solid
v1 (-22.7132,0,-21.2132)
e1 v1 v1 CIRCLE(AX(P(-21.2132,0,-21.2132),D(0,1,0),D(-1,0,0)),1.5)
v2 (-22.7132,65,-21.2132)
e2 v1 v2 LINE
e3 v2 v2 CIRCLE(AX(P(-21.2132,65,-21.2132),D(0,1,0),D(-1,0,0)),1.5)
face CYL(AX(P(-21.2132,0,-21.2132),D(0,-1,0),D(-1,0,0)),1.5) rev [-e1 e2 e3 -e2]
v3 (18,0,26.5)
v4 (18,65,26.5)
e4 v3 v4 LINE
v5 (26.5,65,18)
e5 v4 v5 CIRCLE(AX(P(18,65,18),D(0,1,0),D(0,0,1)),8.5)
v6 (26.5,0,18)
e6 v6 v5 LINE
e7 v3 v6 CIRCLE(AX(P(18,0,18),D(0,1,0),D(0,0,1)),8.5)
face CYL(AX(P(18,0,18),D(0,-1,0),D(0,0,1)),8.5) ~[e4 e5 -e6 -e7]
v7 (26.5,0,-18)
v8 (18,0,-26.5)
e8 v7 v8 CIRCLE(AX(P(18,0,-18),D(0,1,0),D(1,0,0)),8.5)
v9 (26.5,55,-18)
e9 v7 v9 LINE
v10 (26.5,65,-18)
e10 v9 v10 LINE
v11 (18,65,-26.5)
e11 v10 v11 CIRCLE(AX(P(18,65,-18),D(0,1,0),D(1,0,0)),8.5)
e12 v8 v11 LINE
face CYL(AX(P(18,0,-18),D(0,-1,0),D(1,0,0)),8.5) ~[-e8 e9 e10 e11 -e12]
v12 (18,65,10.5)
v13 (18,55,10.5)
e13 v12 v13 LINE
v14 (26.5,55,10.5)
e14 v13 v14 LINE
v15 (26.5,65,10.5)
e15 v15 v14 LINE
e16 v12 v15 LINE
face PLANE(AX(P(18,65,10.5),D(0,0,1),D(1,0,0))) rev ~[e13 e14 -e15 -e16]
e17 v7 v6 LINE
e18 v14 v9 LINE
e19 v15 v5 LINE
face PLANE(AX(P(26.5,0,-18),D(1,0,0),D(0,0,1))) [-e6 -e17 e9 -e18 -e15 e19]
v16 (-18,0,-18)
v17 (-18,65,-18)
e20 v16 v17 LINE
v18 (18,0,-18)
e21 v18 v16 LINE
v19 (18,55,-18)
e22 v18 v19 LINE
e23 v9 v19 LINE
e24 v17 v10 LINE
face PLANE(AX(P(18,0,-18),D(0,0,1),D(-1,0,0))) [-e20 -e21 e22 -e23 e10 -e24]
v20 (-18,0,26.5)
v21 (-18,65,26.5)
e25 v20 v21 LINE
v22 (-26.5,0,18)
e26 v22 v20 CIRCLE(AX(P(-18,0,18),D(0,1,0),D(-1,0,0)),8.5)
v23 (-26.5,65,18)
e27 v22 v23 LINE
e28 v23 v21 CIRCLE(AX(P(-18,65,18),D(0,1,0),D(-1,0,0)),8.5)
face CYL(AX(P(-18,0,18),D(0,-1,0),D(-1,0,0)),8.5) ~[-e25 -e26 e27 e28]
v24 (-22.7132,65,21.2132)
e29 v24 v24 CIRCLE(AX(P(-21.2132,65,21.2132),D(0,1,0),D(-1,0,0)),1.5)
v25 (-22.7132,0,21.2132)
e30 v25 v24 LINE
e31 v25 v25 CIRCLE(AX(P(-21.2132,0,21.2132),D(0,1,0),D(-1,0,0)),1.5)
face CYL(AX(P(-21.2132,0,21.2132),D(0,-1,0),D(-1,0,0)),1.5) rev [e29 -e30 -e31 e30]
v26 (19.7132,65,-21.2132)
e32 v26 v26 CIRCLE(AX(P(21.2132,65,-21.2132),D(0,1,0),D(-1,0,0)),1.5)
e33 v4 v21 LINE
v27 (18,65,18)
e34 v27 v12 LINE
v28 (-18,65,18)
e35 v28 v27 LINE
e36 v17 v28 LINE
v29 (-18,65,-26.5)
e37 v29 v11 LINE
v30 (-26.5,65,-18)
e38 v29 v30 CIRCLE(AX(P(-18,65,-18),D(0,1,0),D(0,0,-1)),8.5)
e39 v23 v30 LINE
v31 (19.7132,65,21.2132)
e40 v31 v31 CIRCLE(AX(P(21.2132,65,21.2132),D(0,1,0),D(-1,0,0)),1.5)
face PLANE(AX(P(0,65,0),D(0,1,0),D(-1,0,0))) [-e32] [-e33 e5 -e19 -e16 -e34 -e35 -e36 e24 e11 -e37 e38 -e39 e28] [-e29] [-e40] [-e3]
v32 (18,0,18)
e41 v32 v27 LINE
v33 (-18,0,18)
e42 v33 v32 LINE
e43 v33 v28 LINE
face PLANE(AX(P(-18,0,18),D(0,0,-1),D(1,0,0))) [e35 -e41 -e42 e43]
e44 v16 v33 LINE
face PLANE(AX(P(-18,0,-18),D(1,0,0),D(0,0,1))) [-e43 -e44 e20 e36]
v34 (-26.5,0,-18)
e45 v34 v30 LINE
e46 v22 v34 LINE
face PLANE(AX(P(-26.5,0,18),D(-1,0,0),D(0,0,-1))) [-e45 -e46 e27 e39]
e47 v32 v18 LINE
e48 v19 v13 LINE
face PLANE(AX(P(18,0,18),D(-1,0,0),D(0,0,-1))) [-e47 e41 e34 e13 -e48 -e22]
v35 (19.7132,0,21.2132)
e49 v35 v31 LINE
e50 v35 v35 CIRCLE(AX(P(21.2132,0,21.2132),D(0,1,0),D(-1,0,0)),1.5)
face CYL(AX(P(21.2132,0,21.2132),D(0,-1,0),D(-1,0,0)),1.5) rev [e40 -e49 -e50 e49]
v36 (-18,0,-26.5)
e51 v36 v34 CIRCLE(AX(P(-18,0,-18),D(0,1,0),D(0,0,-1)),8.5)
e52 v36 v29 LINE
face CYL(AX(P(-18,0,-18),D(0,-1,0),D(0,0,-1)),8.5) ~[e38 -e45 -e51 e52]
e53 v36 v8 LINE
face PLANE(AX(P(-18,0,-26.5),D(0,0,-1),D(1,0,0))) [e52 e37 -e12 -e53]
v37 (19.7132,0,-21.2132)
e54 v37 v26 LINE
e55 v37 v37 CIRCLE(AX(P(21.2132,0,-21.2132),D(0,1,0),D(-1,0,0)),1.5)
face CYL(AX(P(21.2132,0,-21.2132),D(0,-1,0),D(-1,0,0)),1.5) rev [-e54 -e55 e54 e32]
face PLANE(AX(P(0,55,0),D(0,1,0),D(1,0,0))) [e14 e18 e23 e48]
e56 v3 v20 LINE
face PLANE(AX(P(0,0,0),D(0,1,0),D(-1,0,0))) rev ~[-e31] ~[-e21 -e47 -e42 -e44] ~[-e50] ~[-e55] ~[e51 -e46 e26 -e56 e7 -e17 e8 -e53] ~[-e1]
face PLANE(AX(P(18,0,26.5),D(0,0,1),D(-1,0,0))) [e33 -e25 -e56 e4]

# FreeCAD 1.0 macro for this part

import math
import FreeCAD as App
import Part
import Sketcher
from FreeCAD import Vector
Q = App.Units.Quantity

doc = App.newDocument("Part")
params = doc.addObject("Spreadsheet::Sheet", "Params")
for row, (alias, value) in enumerate([
    ("sketch1_diameter", "3 mm"),
    ("sketch1_radius", "8.5 mm"),
    ("sketch1_width", "36 mm"),
    ("pad1_length", "65 mm"),
    ("sketch2_width", "8.5 mm"),
    ("sketch2_height", "28.5 mm"),
    ("pocket1_length", "10 mm"),
], start=1):
    params.set(f"A{row}", alias)
    params.set(f"B{row}", "=" + value)
    params.setAlias(f"B{row}", alias)

body = doc.addObject("PartDesign::Body", "Body")

# Sketch on XZ plane
sketch1 = doc.addObject("Sketcher::SketchObject", "Sketch")
body.addObject(sketch1)
sketch1.AttachmentSupport = (doc.XZ_Plane, [""])
sketch1.MapMode = "FlatFace"
sketch1.addGeometry(Part.LineSegment(Vector(-18, 26.5, 0), Vector(18, 26.5, 0)), False)
sketch1.addGeometry(Part.ArcOfCircle(Part.Circle(Vector(18, 18, 0), Vector(0, 0, 1), 8.5), math.radians(0), math.radians(90)), False)
sketch1.addGeometry(Part.LineSegment(Vector(26.5, 18, 0), Vector(26.5, -18, 0)), False)
sketch1.addGeometry(Part.ArcOfCircle(Part.Circle(Vector(18, -18, 0), Vector(0, 0, 1), 8.5), math.radians(-90), math.radians(0)), False)
sketch1.addGeometry(Part.LineSegment(Vector(18, -26.5, 0), Vector(-18, -26.5, 0)), False)
sketch1.addGeometry(Part.ArcOfCircle(Part.Circle(Vector(-18, -18, 0), Vector(0, 0, 1), 8.5), math.radians(180), math.radians(270)), False)
sketch1.addGeometry(Part.LineSegment(Vector(-26.5, -18, 0), Vector(-26.5, 18, 0)), False)
sketch1.addGeometry(Part.ArcOfCircle(Part.Circle(Vector(-18, 18, 0), Vector(0, 0, 1), 8.5), math.radians(90), math.radians(180)), False)
sketch1.addGeometry(Part.Circle(Vector(21.2132, -21.2132, 0), Vector(0, 0, 1), 1.5), False)
sketch1.addGeometry(Part.Circle(Vector(-21.2132, -21.2132, 0), Vector(0, 0, 1), 1.5), False)
sketch1.addGeometry(Part.Circle(Vector(21.2132, 21.2132, 0), Vector(0, 0, 1), 1.5), False)
sketch1.addGeometry(Part.LineSegment(Vector(18, 18, 0), Vector(-18, 18, 0)), False)
sketch1.addGeometry(Part.LineSegment(Vector(-18, 18, 0), Vector(-18, -18, 0)), False)
sketch1.addGeometry(Part.LineSegment(Vector(-18, -18, 0), Vector(18, -18, 0)), False)
sketch1.addGeometry(Part.LineSegment(Vector(18, -18, 0), Vector(18, 18, 0)), False)
sketch1.addGeometry(Part.Circle(Vector(-21.2132, 21.2132, 0), Vector(0, 0, 1), 1.5), False)
sketch1.addConstraint(Sketcher.Constraint("Tangent", 0, 2, 1, 2))
sketch1.addConstraint(Sketcher.Constraint("Tangent", 1, 1, 2, 1))
sketch1.addConstraint(Sketcher.Constraint("Tangent", 2, 2, 3, 2))
sketch1.addConstraint(Sketcher.Constraint("Tangent", 3, 1, 4, 1))
sketch1.addConstraint(Sketcher.Constraint("Tangent", 4, 2, 5, 2))
sketch1.addConstraint(Sketcher.Constraint("Tangent", 5, 1, 6, 1))
sketch1.addConstraint(Sketcher.Constraint("Tangent", 6, 2, 7, 2))
sketch1.addConstraint(Sketcher.Constraint("Tangent", 7, 1, 0, 1))
sketch1.addConstraint(Sketcher.Constraint("Coincident", 11, 2, 12, 1))
sketch1.addConstraint(Sketcher.Constraint("Coincident", 12, 2, 13, 1))
sketch1.addConstraint(Sketcher.Constraint("Coincident", 13, 2, 14, 1))
sketch1.addConstraint(Sketcher.Constraint("Coincident", 14, 2, 11, 1))
sketch1.addConstraint(Sketcher.Constraint("Horizontal", 0))
sketch1.addConstraint(Sketcher.Constraint("Vertical", 2))
sketch1.addConstraint(Sketcher.Constraint("Horizontal", 4))
sketch1.addConstraint(Sketcher.Constraint("Vertical", 6))
sketch1.addConstraint(Sketcher.Constraint("Horizontal", 11))
sketch1.addConstraint(Sketcher.Constraint("Vertical", 12))
sketch1.addConstraint(Sketcher.Constraint("Horizontal", 13))
sketch1.addConstraint(Sketcher.Constraint("Vertical", 14))
sketch1.addConstraint(Sketcher.Constraint("Coincident", 11, 2, 7, 3))
sketch1.addConstraint(Sketcher.Constraint("Coincident", 12, 2, 5, 3))
sketch1.addConstraint(Sketcher.Constraint("Coincident", 13, 2, 3, 3))
sketch1.addConstraint(Sketcher.Constraint("Equal", 1, 3))
sketch1.addConstraint(Sketcher.Constraint("Equal", 8, 9))
sketch1.addConstraint(Sketcher.Constraint("Equal", 9, 10))
sketch1.addConstraint(Sketcher.Constraint("Equal", 10, 15))
sketch1.addConstraint(Sketcher.Constraint("Symmetric", 1, 3, 5, 3, -1, 1))
sketch1.addConstraint(Sketcher.Constraint("Symmetric", 9, 3, 10, 3, -1, 1))
sketch1.addConstraint(Sketcher.Constraint("Symmetric", 8, 3, 15, 3, -1, 1))
sketch1.addConstraint(Sketcher.Constraint("Symmetric", 8, 3, 9, 3, -2))
sketch1.addConstraint(Sketcher.Constraint("Equal", 13, 2))
sketch1.addConstraint(Sketcher.Constraint("Diameter", 8, Q("3 mm")))
sketch1.addConstraint(Sketcher.Constraint("Radius", 1, Q("8.5 mm")))
sketch1.addConstraint(Sketcher.Constraint("DistanceX", 0, 1, 0, 2, Q("36 mm")))
sketch1.addConstraint(Sketcher.Constraint("DistanceX", -1, 1, 8, 3, Q("21.2132 mm")))
sketch1.addConstraint(Sketcher.Constraint("DistanceY", 8, 3, -1, 1, Q("21.2132 mm")))
sketch1.setExpression("Constraints[32]", "Params.sketch1_diameter")
sketch1.setExpression("Constraints[33]", "Params.sketch1_radius")
sketch1.setExpression("Constraints[34]", "Params.sketch1_width")
pad1 = doc.addObject("PartDesign::Pad", "Pad")
body.addObject(pad1)
pad1.Profile = sketch1
pad1.setExpression("Length", "Params.pad1_length")
pad1.Reversed = True

# Sketch on XZ plane
sketch2 = doc.addObject("Sketcher::SketchObject", "Sketch001")
body.addObject(sketch2)
sketch2.AttachmentSupport = (doc.XZ_Plane, [""])
sketch2.MapMode = "FlatFace"
sketch2.AttachmentOffset = App.Placement(Vector(0, 0, -65), App.Rotation())
sketch2.addGeometry(Part.LineSegment(Vector(18, 10.5, 0), Vector(26.5, 10.5, 0)), False)
sketch2.addGeometry(Part.LineSegment(Vector(26.5, 10.5, 0), Vector(26.5, -18, 0)), False)
sketch2.addGeometry(Part.LineSegment(Vector(26.5, -18, 0), Vector(18, -18, 0)), False)
sketch2.addGeometry(Part.LineSegment(Vector(18, -18, 0), Vector(18, 10.5, 0)), False)
sketch2.addConstraint(Sketcher.Constraint("Coincident", 0, 2, 1, 1))
sketch2.addConstraint(Sketcher.Constraint("Coincident", 1, 2, 2, 1))
sketch2.addConstraint(Sketcher.Constraint("Coincident", 2, 2, 3, 1))
sketch2.addConstraint(Sketcher.Constraint("Coincident", 3, 2, 0, 1))
sketch2.addConstraint(Sketcher.Constraint("Horizontal", 0))
sketch2.addConstraint(Sketcher.Constraint("Vertical", 1))
sketch2.addConstraint(Sketcher.Constraint("Horizontal", 2))
sketch2.addConstraint(Sketcher.Constraint("Vertical", 3))
sketch2.addConstraint(Sketcher.Constraint("DistanceX", 0, 1, 0, 2, Q("8.5 mm")))
sketch2.addConstraint(Sketcher.Constraint("DistanceY", 1, 2, 1, 1, Q("28.5 mm")))
sketch2.addConstraint(Sketcher.Constraint("DistanceY", 1, 2, -1, 1, Q("18 mm")))
sketch2.addConstraint(Sketcher.Constraint("DistanceX", -1, 1, 2, 2, Q("18 mm")))
sketch2.setExpression("Constraints[8]", "Params.sketch2_width")
sketch2.setExpression("Constraints[9]", "Params.sketch2_height")
pocket1 = doc.addObject("PartDesign::Pocket", "Pocket")
body.addObject(pocket1)
pocket1.Profile = sketch2
pocket1.setExpression("Length", "Params.pocket1_length")
pocket1.Reversed = True

doc.recompute()
